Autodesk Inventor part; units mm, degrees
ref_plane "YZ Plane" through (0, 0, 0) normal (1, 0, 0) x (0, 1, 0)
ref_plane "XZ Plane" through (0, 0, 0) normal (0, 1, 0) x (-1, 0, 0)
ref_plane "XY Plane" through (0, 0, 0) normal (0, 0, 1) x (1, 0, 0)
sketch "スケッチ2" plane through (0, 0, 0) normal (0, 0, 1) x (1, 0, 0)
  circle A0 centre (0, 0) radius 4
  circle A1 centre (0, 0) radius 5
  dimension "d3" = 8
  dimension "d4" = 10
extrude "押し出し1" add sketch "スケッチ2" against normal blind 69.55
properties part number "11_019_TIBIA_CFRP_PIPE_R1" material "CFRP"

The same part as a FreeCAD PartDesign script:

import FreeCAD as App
import Part
import Sketcher
from FreeCAD import Vector
Q = App.Units.Quantity

doc = App.newDocument("Part")
body = doc.addObject("PartDesign::Body", "Body")

sketch1 = doc.addObject("Sketcher::SketchObject", "Sketch")
body.addObject(sketch1)
sketch1.AttachmentSupport = (doc.XY_Plane, [""])
sketch1.MapMode = "FlatFace"
sketch1.addGeometry(Part.Circle(Vector(0, 0, 0), Vector(0, 0, 1), 5), False)
sketch1.addGeometry(Part.Circle(Vector(0, 0, 0), Vector(0, 0, 1), 4), False)
sketch1.addConstraint(Sketcher.Constraint("Coincident", 0, 3, -1, 1))
sketch1.addConstraint(Sketcher.Constraint("Coincident", 1, 3, -1, 1))
sketch1.addConstraint(Sketcher.Constraint("Diameter", 0, Q("10 mm")))
sketch1.addConstraint(Sketcher.Constraint("Diameter", 1, Q("8 mm")))
pad1 = doc.addObject("PartDesign::Pad", "Pad")
body.addObject(pad1)
pad1.Profile = sketch1
pad1.Length = 69.55
pad1.Reversed = True

doc.recompute()
